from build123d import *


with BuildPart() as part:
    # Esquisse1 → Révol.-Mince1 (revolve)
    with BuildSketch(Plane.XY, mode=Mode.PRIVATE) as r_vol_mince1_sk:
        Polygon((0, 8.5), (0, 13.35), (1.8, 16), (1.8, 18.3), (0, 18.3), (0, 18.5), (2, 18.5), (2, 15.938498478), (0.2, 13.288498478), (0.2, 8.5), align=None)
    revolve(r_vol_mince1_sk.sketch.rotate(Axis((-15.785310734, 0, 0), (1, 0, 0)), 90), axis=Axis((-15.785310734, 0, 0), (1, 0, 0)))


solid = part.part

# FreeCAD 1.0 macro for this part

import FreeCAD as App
import Part
import Sketcher
Q = App.Units.Quantity

doc = App.newDocument("Part")
body = doc.addObject("PartDesign::Body", "Body")

# Sketch on XY plane
sketch1 = body.newObject("Sketcher::SketchObject", "Sketch")
sketch1.AttachmentSupport = (doc.getObject("XY_Plane"), [""])
sketch1.MapMode = "FlatFace"
sketch1.addGeometry([
    Part.LineSegment(App.Vector(0, 13.35, 0), App.Vector(0, 8.5, 0)),  # 0
    Part.LineSegment(App.Vector(0, 8.5, 0), App.Vector(0.2, 8.5, 0)),  # 1
    Part.LineSegment(App.Vector(0.2, 8.5, 0), App.Vector(0.2, 13.29, 0)),  # 2
    Part.LineSegment(App.Vector(0.2, 13.29, 0), App.Vector(2, 15.94, 0)),  # 3
    Part.LineSegment(App.Vector(2, 15.94, 0), App.Vector(2, 18.5, 0)),  # 4
    Part.LineSegment(App.Vector(2, 18.5, 0), App.Vector(0, 18.5, 0)),  # 5
    Part.LineSegment(App.Vector(0, 18.5, 0), App.Vector(0, 18.3, 0)),  # 6
    Part.LineSegment(App.Vector(0, 18.3, 0), App.Vector(1.8, 18.3, 0)),  # 7
    Part.LineSegment(App.Vector(1.8, 18.3, 0), App.Vector(1.8, 16, 0)),  # 8
    Part.LineSegment(App.Vector(1.8, 16, 0), App.Vector(0, 13.35, 0)),  # 9
], False)
sketch1.addConstraint([
    Sketcher.Constraint("Coincident", 0, 2, 1, 1),
    Sketcher.Constraint("Coincident", 1, 2, 2, 1),
    Sketcher.Constraint("Coincident", 2, 2, 3, 1),
    Sketcher.Constraint("Coincident", 3, 2, 4, 1),
    Sketcher.Constraint("Coincident", 4, 2, 5, 1),
    Sketcher.Constraint("Coincident", 5, 2, 6, 1),
    Sketcher.Constraint("Coincident", 6, 2, 7, 1),
    Sketcher.Constraint("Coincident", 7, 2, 8, 1),
    Sketcher.Constraint("Coincident", 8, 2, 9, 1),
    Sketcher.Constraint("Coincident", 9, 2, 0, 1),
    Sketcher.Constraint("Vertical", 0),
    Sketcher.Constraint("Horizontal", 1),
    Sketcher.Constraint("Vertical", 2),
    Sketcher.Constraint("Vertical", 4),
    Sketcher.Constraint("Horizontal", 5),
    Sketcher.Constraint("Vertical", 6),
    Sketcher.Constraint("Horizontal", 7),
    Sketcher.Constraint("Vertical", 8),
    Sketcher.Constraint("PointOnObject", 0, 2, -2),
    Sketcher.Constraint("PointOnObject", 5, 2, -2),
    Sketcher.Constraint("Parallel", 3, 9),
    Sketcher.Constraint("Equal", 1, 6),
    Sketcher.Constraint("Equal", 3, 9),
    Sketcher.Constraint("DistanceX", 5, 2, 5, 1, Q("2 mm")),
    Sketcher.Constraint("DistanceX", 1, 1, 1, 2, Q("0.2 mm")),
    Sketcher.Constraint("DistanceY", 8, 2, 8, 1, Q("2.3 mm")),
    Sketcher.Constraint("DistanceY", -1, 1, 8, 2, Q("16 mm")),
    Sketcher.Constraint("DistanceY", 1, 2, 4, 2, Q("10 mm")),
    Sketcher.Constraint("DistanceY", 0, 2, 0, 1, Q("4.85 mm")),
    Sketcher.Constraint("DistanceY", 2, 1, 2, 2, Q("4.788498 mm")),
])
revolution = body.newObject("PartDesign::Revolution", "Revolution")
revolution.Profile = sketch1
revolution.ReferenceAxis = (sketch1, ["H_Axis"])
revolution.Angle = 360

doc.recompute()
